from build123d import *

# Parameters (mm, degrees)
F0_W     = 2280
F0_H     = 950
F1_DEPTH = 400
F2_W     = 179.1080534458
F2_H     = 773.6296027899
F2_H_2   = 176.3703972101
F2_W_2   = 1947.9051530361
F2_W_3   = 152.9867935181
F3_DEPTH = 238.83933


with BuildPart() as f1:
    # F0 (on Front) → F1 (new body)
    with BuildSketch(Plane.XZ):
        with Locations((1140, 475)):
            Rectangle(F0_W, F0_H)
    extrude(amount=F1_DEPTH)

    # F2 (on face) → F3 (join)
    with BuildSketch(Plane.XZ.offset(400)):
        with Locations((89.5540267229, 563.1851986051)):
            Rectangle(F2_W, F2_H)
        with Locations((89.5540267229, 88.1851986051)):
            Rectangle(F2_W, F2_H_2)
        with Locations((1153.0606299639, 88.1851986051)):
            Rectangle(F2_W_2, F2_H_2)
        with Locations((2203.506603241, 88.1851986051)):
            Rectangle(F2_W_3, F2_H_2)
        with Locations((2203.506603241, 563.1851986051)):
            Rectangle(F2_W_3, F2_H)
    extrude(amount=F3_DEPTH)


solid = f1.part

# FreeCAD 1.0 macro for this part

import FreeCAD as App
import Part
import Sketcher


def add_polygon(sketch, points):
    """Adds a closed chain of lines whose ends are joined by coincident constraints."""
    first, n = sketch.GeometryCount, len(points)
    for a, b in zip(points, points[1:] + points[:1]):
        sketch.addGeometry(Part.LineSegment(App.Vector(*a, 0), App.Vector(*b, 0)), False)
    for i in range(n):
        sketch.addConstraint(Sketcher.Constraint("Coincident", first + i, 2, first + (i + 1) % n, 1))

doc = App.newDocument("Part")
params = doc.addObject("Spreadsheet::Sheet", "Params")
for row, (alias, value) in enumerate([
    ("sketch1_width", "2280 mm"),
    ("sketch1_height", "950 mm"),
    ("pad1_length", "400 mm"),
    ("sketch2_width", "2280 mm"),
    ("sketch2_height", "950 mm"),
    ("pad2_length", "238.83933 mm"),
], start=1):
    params.set(f"A{row}", alias)
    params.set(f"B{row}", "=" + value)
    params.setAlias(f"B{row}", alias)

body = doc.addObject("PartDesign::Body", "Body")

sketch1 = body.newObject("Sketcher::SketchObject", "Sketch")
sketch1.AttachmentSupport = (doc.getObject("XZ_Plane"), [""])
sketch1.MapMode = "FlatFace"
add_polygon(sketch1, [(0, 950), (0, 0), (2280, 0), (2280, 950)])
sketch1.addConstraint(Sketcher.Constraint("Vertical", 0))
sketch1.addConstraint(Sketcher.Constraint("Horizontal", 1))
sketch1.addConstraint(Sketcher.Constraint("Vertical", 2))
sketch1.addConstraint(Sketcher.Constraint("Horizontal", 3))
sketch1.addConstraint(Sketcher.Constraint("Coincident", 0, 2, -1, 1))
sketch1.addConstraint(Sketcher.Constraint("DistanceX", 1, 1, 1, 2, 2280.0))
sketch1.addConstraint(Sketcher.Constraint("DistanceY", 0, 2, 0, 1, 950.0))
sketch1.setExpression("Constraints[9]", "Params.sketch1_width")
sketch1.setExpression("Constraints[10]", "Params.sketch1_height")
pad1 = body.newObject("PartDesign::Pad", "Pad")
pad1.Profile = sketch1
pad1.setExpression("Length", "Params.pad1_length")

sketch2 = body.newObject("Sketcher::SketchObject", "Sketch001")
sketch2.AttachmentSupport = (doc.getObject("XZ_Plane"), [""])
sketch2.MapMode = "FlatFace"
sketch2.AttachmentOffset = App.Placement(App.Vector(0, 0, 400), App.Rotation())
add_polygon(sketch2, [(0, 950), (0, 0), (2280, 0), (2280, 950), (2127, 950), (2127, 176), (179, 176), (179, 950)])
sketch2.addConstraint(Sketcher.Constraint("Vertical", 0))
sketch2.addConstraint(Sketcher.Constraint("Horizontal", 1))
sketch2.addConstraint(Sketcher.Constraint("Vertical", 2))
sketch2.addConstraint(Sketcher.Constraint("Horizontal", 3))
sketch2.addConstraint(Sketcher.Constraint("Vertical", 4))
sketch2.addConstraint(Sketcher.Constraint("Horizontal", 5))
sketch2.addConstraint(Sketcher.Constraint("Vertical", 6))
sketch2.addConstraint(Sketcher.Constraint("Horizontal", 7))
sketch2.addConstraint(Sketcher.Constraint("Coincident", 0, 2, -1, 1))
sketch2.addConstraint(Sketcher.Constraint("Horizontal", 3, 2, 6, 2))
sketch2.addConstraint(Sketcher.Constraint("DistanceX", 1, 1, 1, 2, 2280.0))
sketch2.addConstraint(Sketcher.Constraint("DistanceY", 0, 2, 0, 1, 950.0))
sketch2.addConstraint(Sketcher.Constraint("DistanceX", 3, 2, 3, 1, 152.986794))
sketch2.addConstraint(Sketcher.Constraint("DistanceX", 5, 2, 5, 1, 1947.905153))
sketch2.addConstraint(Sketcher.Constraint("DistanceY", 4, 2, 4, 1, 773.629603))
sketch2.setExpression("Constraints[18]", "Params.sketch2_width")
sketch2.setExpression("Constraints[19]", "Params.sketch2_height")
pad2 = body.newObject("PartDesign::Pad", "Pad001")
pad2.Profile = sketch2
pad2.setExpression("Length", "Params.pad2_length")

doc.recompute()
